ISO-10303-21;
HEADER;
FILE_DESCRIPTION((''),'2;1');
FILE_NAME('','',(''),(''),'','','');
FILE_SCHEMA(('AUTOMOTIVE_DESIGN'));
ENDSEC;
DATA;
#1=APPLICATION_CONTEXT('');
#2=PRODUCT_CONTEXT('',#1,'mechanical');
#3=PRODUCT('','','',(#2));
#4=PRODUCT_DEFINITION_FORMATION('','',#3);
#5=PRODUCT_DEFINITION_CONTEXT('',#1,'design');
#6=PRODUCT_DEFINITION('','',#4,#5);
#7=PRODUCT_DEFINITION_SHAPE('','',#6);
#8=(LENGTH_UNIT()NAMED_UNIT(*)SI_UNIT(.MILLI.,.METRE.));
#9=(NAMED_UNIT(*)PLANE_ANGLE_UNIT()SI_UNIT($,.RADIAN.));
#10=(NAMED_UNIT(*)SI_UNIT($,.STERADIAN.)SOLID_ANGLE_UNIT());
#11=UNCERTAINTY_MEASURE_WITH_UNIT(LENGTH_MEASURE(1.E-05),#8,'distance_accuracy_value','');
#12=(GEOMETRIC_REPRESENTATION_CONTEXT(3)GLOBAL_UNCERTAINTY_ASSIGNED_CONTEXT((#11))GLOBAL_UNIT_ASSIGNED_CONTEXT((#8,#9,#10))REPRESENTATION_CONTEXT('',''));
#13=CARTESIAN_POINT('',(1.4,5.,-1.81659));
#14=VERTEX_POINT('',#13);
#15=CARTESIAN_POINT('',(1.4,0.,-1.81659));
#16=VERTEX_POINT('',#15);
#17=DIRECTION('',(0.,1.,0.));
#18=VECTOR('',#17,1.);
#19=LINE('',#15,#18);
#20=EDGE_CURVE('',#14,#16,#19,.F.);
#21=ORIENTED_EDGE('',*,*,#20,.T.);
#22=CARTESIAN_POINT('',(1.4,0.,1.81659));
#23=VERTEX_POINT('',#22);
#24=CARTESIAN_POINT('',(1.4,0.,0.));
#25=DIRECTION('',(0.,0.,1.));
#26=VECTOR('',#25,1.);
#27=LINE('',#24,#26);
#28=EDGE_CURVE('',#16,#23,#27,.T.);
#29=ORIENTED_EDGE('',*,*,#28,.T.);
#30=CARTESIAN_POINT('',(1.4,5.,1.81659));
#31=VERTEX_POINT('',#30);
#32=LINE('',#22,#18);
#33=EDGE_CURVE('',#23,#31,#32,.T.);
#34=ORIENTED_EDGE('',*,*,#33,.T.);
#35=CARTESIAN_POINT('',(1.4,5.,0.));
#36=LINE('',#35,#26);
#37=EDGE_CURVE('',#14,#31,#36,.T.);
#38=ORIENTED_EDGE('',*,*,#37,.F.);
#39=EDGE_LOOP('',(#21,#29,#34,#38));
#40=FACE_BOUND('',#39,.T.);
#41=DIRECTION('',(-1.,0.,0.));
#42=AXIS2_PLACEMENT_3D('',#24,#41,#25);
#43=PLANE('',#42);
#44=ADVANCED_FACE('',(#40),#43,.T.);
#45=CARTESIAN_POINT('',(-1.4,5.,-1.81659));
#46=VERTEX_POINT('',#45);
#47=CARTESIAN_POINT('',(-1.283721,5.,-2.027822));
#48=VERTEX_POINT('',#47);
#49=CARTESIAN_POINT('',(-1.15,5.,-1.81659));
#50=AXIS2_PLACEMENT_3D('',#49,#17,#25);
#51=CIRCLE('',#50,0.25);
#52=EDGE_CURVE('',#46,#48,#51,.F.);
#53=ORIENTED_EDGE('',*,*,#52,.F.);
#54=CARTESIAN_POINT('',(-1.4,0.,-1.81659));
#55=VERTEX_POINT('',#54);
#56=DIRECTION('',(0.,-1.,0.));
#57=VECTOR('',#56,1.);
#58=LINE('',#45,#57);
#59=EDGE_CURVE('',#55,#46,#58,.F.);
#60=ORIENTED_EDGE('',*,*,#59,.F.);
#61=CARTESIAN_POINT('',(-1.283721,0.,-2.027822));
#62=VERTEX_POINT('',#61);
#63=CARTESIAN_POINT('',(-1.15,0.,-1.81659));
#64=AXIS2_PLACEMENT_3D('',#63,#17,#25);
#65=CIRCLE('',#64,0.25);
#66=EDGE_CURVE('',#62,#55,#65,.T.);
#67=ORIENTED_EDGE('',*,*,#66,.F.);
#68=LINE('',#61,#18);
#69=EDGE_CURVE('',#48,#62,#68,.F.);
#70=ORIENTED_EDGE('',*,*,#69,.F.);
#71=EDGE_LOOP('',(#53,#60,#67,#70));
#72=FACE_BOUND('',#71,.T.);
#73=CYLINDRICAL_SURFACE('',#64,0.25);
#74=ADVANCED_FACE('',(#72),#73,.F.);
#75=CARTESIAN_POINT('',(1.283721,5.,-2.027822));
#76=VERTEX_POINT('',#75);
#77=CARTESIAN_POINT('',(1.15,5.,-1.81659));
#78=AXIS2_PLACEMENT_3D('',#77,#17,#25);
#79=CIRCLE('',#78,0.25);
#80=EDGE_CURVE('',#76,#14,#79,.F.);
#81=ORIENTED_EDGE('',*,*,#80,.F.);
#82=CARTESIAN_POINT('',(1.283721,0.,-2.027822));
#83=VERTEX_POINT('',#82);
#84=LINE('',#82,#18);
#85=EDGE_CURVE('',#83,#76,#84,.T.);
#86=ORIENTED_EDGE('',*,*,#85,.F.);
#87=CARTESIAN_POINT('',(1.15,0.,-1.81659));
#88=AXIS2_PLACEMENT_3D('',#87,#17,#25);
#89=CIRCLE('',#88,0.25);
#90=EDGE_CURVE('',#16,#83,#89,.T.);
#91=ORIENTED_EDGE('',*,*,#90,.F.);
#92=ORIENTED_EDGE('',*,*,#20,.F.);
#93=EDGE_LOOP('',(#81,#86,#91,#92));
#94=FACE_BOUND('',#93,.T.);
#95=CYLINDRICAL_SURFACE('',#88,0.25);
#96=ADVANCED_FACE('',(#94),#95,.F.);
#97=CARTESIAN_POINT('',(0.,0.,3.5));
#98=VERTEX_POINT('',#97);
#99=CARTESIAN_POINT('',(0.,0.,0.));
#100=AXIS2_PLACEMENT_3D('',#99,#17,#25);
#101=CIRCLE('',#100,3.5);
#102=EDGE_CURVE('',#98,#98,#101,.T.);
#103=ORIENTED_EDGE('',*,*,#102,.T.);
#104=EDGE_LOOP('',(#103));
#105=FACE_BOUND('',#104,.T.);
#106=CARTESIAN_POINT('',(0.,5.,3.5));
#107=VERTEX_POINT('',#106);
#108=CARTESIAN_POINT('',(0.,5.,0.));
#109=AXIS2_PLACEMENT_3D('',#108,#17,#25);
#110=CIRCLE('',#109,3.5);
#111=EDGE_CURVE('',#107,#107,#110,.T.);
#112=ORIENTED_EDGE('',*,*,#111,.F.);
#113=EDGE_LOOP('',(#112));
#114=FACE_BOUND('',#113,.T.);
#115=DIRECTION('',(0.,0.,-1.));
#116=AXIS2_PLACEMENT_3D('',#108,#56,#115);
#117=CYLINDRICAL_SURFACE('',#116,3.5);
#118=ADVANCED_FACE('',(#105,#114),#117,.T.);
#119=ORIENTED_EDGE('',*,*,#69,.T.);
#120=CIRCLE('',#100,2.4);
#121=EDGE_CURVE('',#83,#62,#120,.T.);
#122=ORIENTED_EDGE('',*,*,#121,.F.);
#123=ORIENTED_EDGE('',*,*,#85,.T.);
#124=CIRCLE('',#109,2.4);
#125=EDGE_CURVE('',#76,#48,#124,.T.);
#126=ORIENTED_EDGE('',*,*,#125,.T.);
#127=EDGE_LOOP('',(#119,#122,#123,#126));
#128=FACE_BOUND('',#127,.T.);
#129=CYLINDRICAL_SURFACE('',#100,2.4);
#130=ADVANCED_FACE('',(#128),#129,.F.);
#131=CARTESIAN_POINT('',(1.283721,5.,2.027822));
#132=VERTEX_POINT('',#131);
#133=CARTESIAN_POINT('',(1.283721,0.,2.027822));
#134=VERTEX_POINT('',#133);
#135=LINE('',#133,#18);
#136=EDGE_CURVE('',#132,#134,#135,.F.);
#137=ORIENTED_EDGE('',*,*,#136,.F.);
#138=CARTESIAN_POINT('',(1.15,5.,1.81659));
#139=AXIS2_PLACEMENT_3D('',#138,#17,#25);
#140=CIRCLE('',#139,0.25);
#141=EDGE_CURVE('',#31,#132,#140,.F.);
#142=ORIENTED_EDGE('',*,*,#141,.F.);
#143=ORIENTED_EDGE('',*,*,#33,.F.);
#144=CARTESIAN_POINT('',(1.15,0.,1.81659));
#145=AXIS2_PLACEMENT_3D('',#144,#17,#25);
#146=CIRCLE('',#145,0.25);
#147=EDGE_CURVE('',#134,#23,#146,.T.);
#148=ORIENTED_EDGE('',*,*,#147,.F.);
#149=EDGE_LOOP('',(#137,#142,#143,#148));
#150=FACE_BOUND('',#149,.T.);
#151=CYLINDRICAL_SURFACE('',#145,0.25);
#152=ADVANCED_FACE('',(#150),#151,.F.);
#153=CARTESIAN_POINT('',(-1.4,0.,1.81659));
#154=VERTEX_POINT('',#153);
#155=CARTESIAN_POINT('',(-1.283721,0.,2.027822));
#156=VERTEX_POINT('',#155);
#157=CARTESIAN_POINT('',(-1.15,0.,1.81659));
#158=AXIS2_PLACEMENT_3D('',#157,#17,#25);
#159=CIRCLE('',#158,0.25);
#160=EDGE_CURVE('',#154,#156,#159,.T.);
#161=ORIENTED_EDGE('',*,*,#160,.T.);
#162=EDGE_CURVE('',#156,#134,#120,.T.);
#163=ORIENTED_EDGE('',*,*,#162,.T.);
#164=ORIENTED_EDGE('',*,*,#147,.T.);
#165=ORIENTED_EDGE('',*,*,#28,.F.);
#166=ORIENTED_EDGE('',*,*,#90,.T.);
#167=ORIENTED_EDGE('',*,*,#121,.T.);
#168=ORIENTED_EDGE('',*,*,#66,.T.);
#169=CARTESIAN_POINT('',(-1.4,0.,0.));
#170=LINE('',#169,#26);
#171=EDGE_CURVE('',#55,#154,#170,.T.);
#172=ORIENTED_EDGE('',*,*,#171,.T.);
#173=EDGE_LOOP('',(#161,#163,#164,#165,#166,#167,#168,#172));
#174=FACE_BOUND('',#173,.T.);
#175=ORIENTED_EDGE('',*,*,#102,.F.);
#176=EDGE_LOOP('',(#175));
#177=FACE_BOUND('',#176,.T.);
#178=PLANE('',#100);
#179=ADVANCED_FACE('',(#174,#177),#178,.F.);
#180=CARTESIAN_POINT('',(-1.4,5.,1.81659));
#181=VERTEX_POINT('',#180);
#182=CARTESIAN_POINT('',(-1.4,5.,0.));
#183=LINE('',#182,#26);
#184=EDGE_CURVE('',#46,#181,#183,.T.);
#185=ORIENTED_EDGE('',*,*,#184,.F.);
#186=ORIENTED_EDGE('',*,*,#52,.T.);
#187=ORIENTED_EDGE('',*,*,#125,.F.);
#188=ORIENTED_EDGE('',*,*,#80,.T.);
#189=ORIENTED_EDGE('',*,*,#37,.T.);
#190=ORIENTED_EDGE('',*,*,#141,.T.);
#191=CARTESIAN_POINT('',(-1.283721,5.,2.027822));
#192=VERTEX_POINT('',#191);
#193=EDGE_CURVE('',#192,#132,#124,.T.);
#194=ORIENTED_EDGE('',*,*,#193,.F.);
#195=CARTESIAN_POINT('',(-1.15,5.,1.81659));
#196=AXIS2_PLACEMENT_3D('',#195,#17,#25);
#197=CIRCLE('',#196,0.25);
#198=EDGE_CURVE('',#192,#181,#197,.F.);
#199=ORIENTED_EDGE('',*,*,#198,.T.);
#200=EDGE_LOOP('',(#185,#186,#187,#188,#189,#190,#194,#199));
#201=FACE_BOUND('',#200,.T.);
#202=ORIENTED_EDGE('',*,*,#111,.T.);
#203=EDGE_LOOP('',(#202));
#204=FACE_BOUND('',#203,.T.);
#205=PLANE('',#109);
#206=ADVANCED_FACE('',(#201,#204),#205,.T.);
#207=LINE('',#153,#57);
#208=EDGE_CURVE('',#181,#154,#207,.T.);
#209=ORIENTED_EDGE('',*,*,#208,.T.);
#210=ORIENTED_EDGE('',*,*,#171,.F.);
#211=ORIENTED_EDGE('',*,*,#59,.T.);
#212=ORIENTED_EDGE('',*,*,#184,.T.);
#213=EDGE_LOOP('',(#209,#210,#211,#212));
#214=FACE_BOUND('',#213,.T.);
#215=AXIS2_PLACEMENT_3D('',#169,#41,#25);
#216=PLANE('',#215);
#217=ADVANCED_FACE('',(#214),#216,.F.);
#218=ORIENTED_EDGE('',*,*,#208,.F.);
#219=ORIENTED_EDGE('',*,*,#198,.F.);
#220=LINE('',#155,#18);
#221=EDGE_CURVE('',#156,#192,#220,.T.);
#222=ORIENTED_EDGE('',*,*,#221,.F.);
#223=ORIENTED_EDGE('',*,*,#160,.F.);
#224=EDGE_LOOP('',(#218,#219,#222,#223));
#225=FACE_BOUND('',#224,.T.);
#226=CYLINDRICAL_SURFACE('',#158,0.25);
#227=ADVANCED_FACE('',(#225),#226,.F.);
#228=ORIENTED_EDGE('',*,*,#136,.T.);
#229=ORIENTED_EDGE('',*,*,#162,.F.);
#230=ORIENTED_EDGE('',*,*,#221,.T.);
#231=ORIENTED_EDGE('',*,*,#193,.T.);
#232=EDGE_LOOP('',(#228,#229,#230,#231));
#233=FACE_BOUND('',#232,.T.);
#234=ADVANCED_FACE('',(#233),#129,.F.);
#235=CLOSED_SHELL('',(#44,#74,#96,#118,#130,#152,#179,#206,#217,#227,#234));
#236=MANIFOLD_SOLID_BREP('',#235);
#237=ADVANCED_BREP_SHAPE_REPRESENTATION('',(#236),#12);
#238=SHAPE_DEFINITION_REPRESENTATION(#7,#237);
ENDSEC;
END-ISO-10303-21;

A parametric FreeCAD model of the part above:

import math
import FreeCAD as App
import Part
import Sketcher


def edges_at(feature, points):
    """Names of the edges that pass closest to the given points."""
    edges = feature.Shape.Edges
    near = lambda p: min(range(len(edges)), key=lambda i: edges[i].distToShape(Part.Vertex(*p))[0])
    return sorted({f"Edge{near(p) + 1}" for p in points})

doc = App.newDocument("Part")
body = doc.addObject("PartDesign::Body", "Body")

sketch1 = body.newObject("Sketcher::SketchObject", "Sketch")
sketch1.AttachmentSupport = (doc.getObject("XZ_Plane"), [""])
sketch1.MapMode = "FlatFace"
sketch1.addGeometry(Part.Circle(App.Vector(0, 0, 0), App.Vector(0, 0, 1), 3.5), False)
sketch1.addConstraint([
    Sketcher.Constraint("Coincident", 0, 3, -1, 1),
    Sketcher.Constraint("Diameter", 0, 7.0),
])
pad1 = body.newObject("PartDesign::Pad", "Pad")
pad1.Profile = sketch1
pad1.Length = 5
pad1.Reversed = True

sketch2 = body.newObject("Sketcher::SketchObject", "Sketch001")
sketch2.AttachmentSupport = (doc.getObject("XZ_Plane"), [""])
sketch2.MapMode = "FlatFace"
sketch2.AttachmentOffset = App.Placement(App.Vector(0, 0, -5), App.Rotation())
sketch2.addGeometry([
    Part.LineSegment(App.Vector(1.4, 1.949359, 0), App.Vector(1.4, -1.949359, 0)),
    Part.ArcOfCircle(Part.Circle(App.Vector(0, 0, 0), App.Vector(0, 0, 1), 2.4), math.radians(-125.685335), math.radians(-54.314665)),
    Part.LineSegment(App.Vector(-1.4, -1.949359, 0), App.Vector(-1.4, 1.949359, 0)),
    Part.ArcOfCircle(Part.Circle(App.Vector(0, 0, 0), App.Vector(0, 0, 1), 2.4), math.radians(54.314665), math.radians(125.685335)),
], False)
sketch2.addConstraint([
    Sketcher.Constraint("Coincident", 0, 2, 1, 2),
    Sketcher.Constraint("Coincident", 1, 1, 2, 1),
    Sketcher.Constraint("Coincident", 2, 2, 3, 2),
    Sketcher.Constraint("Coincident", 3, 1, 0, 1),
    Sketcher.Constraint("Vertical", 0),
    Sketcher.Constraint("Vertical", 2),
    Sketcher.Constraint("Coincident", 1, 3, -1, 1),
    Sketcher.Constraint("Coincident", 3, 3, -1, 1),
    Sketcher.Constraint("Equal", 1, 3),
    Sketcher.Constraint("Horizontal", 0, 2, 1, 1),
    Sketcher.Constraint("Radius", 1, 2.4),
    Sketcher.Constraint("DistanceX", -1, 1, 0, 2, 1.4),
])
pocket1 = body.newObject("PartDesign::Pocket", "Pocket")
pocket1.Profile = sketch2
pocket1.Length = 5
pocket1.Reversed = True
doc.recompute()

fillet = body.newObject("PartDesign::Fillet", "Fillet")
fillet.Base = (pocket1, edges_at(pocket1, [
    (1.4, 2.5, 1.949),
    (-1.4, 2.5, 1.949),
    (-1.4, 2.5, -1.949),
    (1.4, 2.5, -1.949),
]))
fillet.Radius = 0.25

doc.recompute()
